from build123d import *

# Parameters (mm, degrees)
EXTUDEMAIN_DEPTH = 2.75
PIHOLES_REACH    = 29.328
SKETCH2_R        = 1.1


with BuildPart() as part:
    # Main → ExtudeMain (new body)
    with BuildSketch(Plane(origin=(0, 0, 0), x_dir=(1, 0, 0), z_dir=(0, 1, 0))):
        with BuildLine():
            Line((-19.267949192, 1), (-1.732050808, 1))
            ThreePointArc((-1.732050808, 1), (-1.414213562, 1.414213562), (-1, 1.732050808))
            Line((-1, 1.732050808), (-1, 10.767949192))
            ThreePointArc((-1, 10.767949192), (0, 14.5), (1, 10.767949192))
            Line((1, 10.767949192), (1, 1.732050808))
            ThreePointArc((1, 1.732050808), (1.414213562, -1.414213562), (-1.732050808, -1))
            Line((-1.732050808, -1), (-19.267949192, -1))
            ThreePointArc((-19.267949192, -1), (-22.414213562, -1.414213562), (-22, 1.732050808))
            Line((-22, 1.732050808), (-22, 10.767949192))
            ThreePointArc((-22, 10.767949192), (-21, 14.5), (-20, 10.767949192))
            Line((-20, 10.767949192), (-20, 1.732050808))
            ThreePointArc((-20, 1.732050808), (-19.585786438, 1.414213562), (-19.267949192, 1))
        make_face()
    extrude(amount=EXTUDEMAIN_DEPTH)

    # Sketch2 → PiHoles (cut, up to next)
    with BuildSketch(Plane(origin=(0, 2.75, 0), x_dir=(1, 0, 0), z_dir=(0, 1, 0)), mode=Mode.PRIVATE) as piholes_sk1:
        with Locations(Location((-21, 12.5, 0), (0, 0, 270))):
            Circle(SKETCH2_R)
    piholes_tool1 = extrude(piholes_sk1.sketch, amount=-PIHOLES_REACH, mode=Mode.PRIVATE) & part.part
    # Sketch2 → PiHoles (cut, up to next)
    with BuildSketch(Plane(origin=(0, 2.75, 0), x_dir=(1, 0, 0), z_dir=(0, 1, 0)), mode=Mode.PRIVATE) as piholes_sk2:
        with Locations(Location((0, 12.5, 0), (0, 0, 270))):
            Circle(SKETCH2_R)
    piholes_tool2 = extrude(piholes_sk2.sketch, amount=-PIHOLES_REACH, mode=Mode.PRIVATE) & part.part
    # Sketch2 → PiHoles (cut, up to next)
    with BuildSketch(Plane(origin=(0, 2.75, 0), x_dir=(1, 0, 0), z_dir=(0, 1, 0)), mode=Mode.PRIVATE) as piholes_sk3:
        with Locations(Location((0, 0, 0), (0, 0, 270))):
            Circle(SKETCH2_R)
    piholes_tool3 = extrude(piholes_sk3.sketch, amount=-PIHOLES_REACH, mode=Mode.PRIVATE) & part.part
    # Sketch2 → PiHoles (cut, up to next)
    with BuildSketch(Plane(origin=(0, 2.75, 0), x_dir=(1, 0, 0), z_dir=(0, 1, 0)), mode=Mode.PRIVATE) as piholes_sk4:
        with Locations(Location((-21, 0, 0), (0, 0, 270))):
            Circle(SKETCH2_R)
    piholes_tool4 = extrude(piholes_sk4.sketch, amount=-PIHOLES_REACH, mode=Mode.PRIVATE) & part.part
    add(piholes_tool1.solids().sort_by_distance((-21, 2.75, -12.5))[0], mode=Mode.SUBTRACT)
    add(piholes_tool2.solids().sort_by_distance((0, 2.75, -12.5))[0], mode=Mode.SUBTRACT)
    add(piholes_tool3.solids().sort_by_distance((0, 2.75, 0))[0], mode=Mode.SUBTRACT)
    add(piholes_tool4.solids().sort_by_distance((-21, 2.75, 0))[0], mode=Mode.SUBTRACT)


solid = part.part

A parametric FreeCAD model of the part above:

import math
import FreeCAD as App
import Part
import Sketcher

V = App.Vector
Q = App.Units.Quantity

doc = App.newDocument("Part")
body = doc.addObject("PartDesign::Body", "Body")

# Sketch on XZ plane
sketch1 = body.newObject("Sketcher::SketchObject", "Sketch")
sketch1.AttachmentSupport = (doc.getObject("XZ_Plane"), [""])
sketch1.MapMode = "FlatFace"
sketch1.addGeometry([
    Part.LineSegment(V(-1.7, -1, 0), V(-19.3, -1, 0)),  # 0
    Part.ArcOfCircle(Part.Circle(V(-21, 0, 0), V(0, 0, 1), 2), math.radians(-60), math.radians(-30)),  # 1
    Part.LineSegment(V(-20, -1.7, 0), V(-20, -10.8, 0)),  # 2
    Part.ArcOfCircle(Part.Circle(V(-21, -12.5, 0), V(0, 0, 1), 2), math.radians(120), math.radians(420)),  # 3
    Part.LineSegment(V(-22, -10.8, 0), V(-22, -1.7, 0)),  # 4
    Part.ArcOfCircle(Part.Circle(V(-21, 0, 0), V(0, 0, 1), 2), math.radians(30), math.radians(240)),  # 5
    Part.LineSegment(V(-19.3, 1, 0), V(-1.7, 1, 0)),  # 6
    Part.ArcOfCircle(Part.Circle(V(0, 0, 0), V(0, 0, 1), 2), math.radians(-60), math.radians(150)),  # 7
    Part.LineSegment(V(1, -1.7, 0), V(1, -10.8, 0)),  # 8
    Part.ArcOfCircle(Part.Circle(V(0, -12.5, 0), V(0, 0, 1), 2), math.radians(120), math.radians(420)),  # 9
    Part.LineSegment(V(-1, -10.8, 0), V(-1, -1.7, 0)),  # 10
    Part.ArcOfCircle(Part.Circle(V(0, 0, 0), V(0, 0, 1), 2), math.radians(-150), math.radians(-120)),  # 11
], False)
sketch1.addConstraint([
    Sketcher.Constraint("Coincident", 0, 2, 1, 2),
    Sketcher.Constraint("Coincident", 1, 1, 2, 1),
    Sketcher.Constraint("Coincident", 2, 2, 3, 2),
    Sketcher.Constraint("Coincident", 3, 1, 4, 1),
    Sketcher.Constraint("Coincident", 4, 2, 5, 2),
    Sketcher.Constraint("Coincident", 5, 1, 6, 1),
    Sketcher.Constraint("Coincident", 6, 2, 7, 2),
    Sketcher.Constraint("Coincident", 7, 1, 8, 1),
    Sketcher.Constraint("Coincident", 8, 2, 9, 2),
    Sketcher.Constraint("Coincident", 9, 1, 10, 1),
    Sketcher.Constraint("Coincident", 10, 2, 11, 2),
    Sketcher.Constraint("Coincident", 11, 1, 0, 1),
    Sketcher.Constraint("Horizontal", 0),
    Sketcher.Constraint("Vertical", 2),
    Sketcher.Constraint("Vertical", 4),
    Sketcher.Constraint("Horizontal", 6),
    Sketcher.Constraint("Vertical", 8),
    Sketcher.Constraint("Vertical", 10),
    Sketcher.Constraint("Coincident", 7, 3, -1, 1),
    Sketcher.Constraint("Coincident", 11, 3, -1, 1),
    Sketcher.Constraint("Coincident", 5, 3, 1, 3),
    Sketcher.Constraint("Equal", 1, 3),
    Sketcher.Constraint("Equal", 3, 5),
    Sketcher.Constraint("Equal", 5, 7),
    Sketcher.Constraint("Equal", 7, 9),
    Sketcher.Constraint("Equal", 9, 11),
    Sketcher.Constraint("Symmetric", 8, 2, 9, 1, -2),
    Sketcher.Constraint("Symmetric", 0, 2, 5, 1, -1),
    Sketcher.Constraint("Horizontal", 3, 3, 9, 3),
    Sketcher.Constraint("Horizontal", 2, 2, 3, 1),
    Sketcher.Constraint("Horizontal", 1, 1, 4, 2),
    Sketcher.Constraint("Horizontal", 4, 2, 7, 1),
    Sketcher.Constraint("Radius", 1, Q("2 mm")),
    Sketcher.Constraint("DistanceX", 1, 3, -1, 1, Q("21 mm")),
    Sketcher.Constraint("DistanceY", 0, 2, -1, 1, Q("1 mm")),
    Sketcher.Constraint("DistanceX", 1, 1, -1, 1, Q("20 mm")),
    Sketcher.Constraint("DistanceY", 3, 3, -1, 1, Q("12.5 mm")),
])
pad1 = body.newObject("PartDesign::Pad", "Pad")
pad1.Profile = sketch1
pad1.Length = 2.75
pad1.Reversed = True

# Sketch on XZ plane
sketch2 = body.newObject("Sketcher::SketchObject", "Sketch001")
sketch2.AttachmentSupport = (doc.getObject("XZ_Plane"), [""])
sketch2.MapMode = "FlatFace"
sketch2.AttachmentOffset = App.Placement(V(0, 0, -2.75), App.Rotation())
sketch2.addGeometry(Part.Circle(V(-21, -12.5, 0), V(0, 0, 1), 1.1), False)
sketch2.addConstraint([
    Sketcher.Constraint("Diameter", 0, Q("2.2 mm")),
    Sketcher.Constraint("DistanceX", 0, 3, -1, 1, Q("21 mm")),
    Sketcher.Constraint("DistanceY", 0, 3, -1, 1, Q("12.5 mm")),
])
pocket1 = body.newObject("PartDesign::Pocket", "Pocket")
pocket1.Profile = sketch2
pocket1.Type = "UpToFirst"
pocket1.Reversed = True

# Sketch on XZ plane
sketch3 = body.newObject("Sketcher::SketchObject", "Sketch002")
sketch3.AttachmentSupport = (doc.getObject("XZ_Plane"), [""])
sketch3.MapMode = "FlatFace"
sketch3.AttachmentOffset = App.Placement(V(0, 0, -2.75), App.Rotation())
sketch3.addGeometry(Part.Circle(V(0, -12.5, 0), V(0, 0, 1), 1.1), False)
sketch3.addConstraint([
    Sketcher.Constraint("PointOnObject", 0, 3, -2),
    Sketcher.Constraint("Diameter", 0, Q("2.2 mm")),
    Sketcher.Constraint("DistanceY", 0, 3, -1, 1, Q("12.5 mm")),
])
pocket2 = body.newObject("PartDesign::Pocket", "Pocket001")
pocket2.Profile = sketch3
pocket2.Type = "UpToFirst"
pocket2.Reversed = True

# Sketch on XZ plane
sketch4 = body.newObject("Sketcher::SketchObject", "Sketch003")
sketch4.AttachmentSupport = (doc.getObject("XZ_Plane"), [""])
sketch4.MapMode = "FlatFace"
sketch4.AttachmentOffset = App.Placement(V(0, 0, -2.75), App.Rotation())
sketch4.addGeometry(Part.Circle(V(0, 0, 0), V(0, 0, 1), 1.1), False)
sketch4.addConstraint([
    Sketcher.Constraint("Coincident", 0, 3, -1, 1),
    Sketcher.Constraint("Diameter", 0, Q("2.2 mm")),
])
pocket3 = body.newObject("PartDesign::Pocket", "Pocket002")
pocket3.Profile = sketch4
pocket3.Type = "UpToFirst"
pocket3.Reversed = True

# Sketch on XZ plane
sketch5 = body.newObject("Sketcher::SketchObject", "Sketch004")
sketch5.AttachmentSupport = (doc.getObject("XZ_Plane"), [""])
sketch5.MapMode = "FlatFace"
sketch5.AttachmentOffset = App.Placement(V(0, 0, -2.75), App.Rotation())
sketch5.addGeometry(Part.Circle(V(-21, 0, 0), V(0, 0, 1), 1.1), False)
sketch5.addConstraint([
    Sketcher.Constraint("PointOnObject", 0, 3, -1),
    Sketcher.Constraint("Diameter", 0, Q("2.2 mm")),
    Sketcher.Constraint("DistanceX", 0, 3, -1, 1, Q("21 mm")),
])
pocket4 = body.newObject("PartDesign::Pocket", "Pocket003")
pocket4.Profile = sketch5
pocket4.Type = "UpToFirst"
pocket4.Reversed = True

doc.recompute()
